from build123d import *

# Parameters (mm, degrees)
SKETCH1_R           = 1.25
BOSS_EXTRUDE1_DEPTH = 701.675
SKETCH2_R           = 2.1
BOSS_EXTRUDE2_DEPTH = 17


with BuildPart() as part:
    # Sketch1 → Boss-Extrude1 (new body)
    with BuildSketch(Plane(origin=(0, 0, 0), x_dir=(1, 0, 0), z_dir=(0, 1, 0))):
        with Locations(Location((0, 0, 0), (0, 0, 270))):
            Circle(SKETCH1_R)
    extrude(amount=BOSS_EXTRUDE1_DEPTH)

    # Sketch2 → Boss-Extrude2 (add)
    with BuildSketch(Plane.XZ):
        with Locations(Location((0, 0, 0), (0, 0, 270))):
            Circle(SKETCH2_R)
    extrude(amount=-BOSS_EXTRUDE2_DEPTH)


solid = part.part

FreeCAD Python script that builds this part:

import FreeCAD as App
import Part
import Sketcher
from FreeCAD import Vector
Q = App.Units.Quantity

doc = App.newDocument("Part")
body = doc.addObject("PartDesign::Body", "Body")

# Sketch on XZ plane
sketch1 = doc.addObject("Sketcher::SketchObject", "Sketch")
body.addObject(sketch1)
sketch1.AttachmentSupport = (doc.XZ_Plane, [""])
sketch1.MapMode = "FlatFace"
sketch1.addGeometry(Part.Circle(Vector(0, 0, 0), Vector(0, 0, 1), 1.25), False)
sketch1.addConstraint(Sketcher.Constraint("Coincident", 0, 3, -1, 1))
sketch1.addConstraint(Sketcher.Constraint("Diameter", 0, Q("2.5 mm")))
pad1 = doc.addObject("PartDesign::Pad", "Pad")
body.addObject(pad1)
pad1.Profile = sketch1
pad1.Length = 701.675
pad1.Reversed = True

# Sketch on XZ plane
sketch2 = doc.addObject("Sketcher::SketchObject", "Sketch001")
body.addObject(sketch2)
sketch2.AttachmentSupport = (doc.XZ_Plane, [""])
sketch2.MapMode = "FlatFace"
sketch2.addGeometry(Part.Circle(Vector(0, 0, 0), Vector(0, 0, 1), 2.1), False)
sketch2.addConstraint(Sketcher.Constraint("Coincident", 0, 3, -1, 1))
sketch2.addConstraint(Sketcher.Constraint("Diameter", 0, Q("4.2 mm")))
pad2 = doc.addObject("PartDesign::Pad", "Pad001")
body.addObject(pad2)
pad2.Profile = sketch2
pad2.Length = 17
pad2.Reversed = True

doc.recompute()
